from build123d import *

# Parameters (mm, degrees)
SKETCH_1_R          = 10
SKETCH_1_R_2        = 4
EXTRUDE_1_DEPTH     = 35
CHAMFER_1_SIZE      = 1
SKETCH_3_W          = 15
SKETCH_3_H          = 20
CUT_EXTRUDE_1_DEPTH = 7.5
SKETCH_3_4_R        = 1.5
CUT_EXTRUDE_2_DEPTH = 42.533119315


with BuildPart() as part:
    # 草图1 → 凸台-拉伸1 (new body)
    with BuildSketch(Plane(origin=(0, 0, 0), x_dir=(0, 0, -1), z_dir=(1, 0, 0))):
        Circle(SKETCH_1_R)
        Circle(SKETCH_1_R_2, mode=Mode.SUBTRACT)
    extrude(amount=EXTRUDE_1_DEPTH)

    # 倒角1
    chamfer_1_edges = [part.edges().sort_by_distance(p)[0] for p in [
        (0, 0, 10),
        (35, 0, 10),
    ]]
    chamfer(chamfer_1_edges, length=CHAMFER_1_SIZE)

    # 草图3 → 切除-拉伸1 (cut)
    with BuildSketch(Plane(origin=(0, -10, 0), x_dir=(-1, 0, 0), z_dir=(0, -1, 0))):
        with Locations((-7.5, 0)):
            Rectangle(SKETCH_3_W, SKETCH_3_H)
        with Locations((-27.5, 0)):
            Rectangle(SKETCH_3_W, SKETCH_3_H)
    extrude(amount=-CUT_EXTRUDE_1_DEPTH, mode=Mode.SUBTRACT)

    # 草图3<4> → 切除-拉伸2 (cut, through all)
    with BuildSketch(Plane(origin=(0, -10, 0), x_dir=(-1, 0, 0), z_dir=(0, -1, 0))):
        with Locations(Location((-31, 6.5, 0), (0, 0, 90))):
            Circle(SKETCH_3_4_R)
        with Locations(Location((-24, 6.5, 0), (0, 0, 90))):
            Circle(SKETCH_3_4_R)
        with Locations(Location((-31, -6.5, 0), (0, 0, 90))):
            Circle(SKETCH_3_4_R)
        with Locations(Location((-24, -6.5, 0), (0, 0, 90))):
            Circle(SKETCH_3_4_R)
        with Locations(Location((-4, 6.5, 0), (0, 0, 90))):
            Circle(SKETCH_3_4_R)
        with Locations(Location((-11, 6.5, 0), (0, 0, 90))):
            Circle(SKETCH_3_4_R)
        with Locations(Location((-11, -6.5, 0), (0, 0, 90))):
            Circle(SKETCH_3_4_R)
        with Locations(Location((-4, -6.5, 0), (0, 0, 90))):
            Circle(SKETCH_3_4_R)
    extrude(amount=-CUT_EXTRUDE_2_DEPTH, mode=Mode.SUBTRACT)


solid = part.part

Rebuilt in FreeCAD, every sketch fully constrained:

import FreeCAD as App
import Part
import Sketcher

V = App.Vector


def edges_at(feature, points):
    """Names of the edges that pass closest to the given points."""
    edges = feature.Shape.Edges
    near = lambda p: min(range(len(edges)), key=lambda i: edges[i].distToShape(Part.Vertex(*p))[0])
    return sorted({f"Edge{near(p) + 1}" for p in points})


def add_polygon(sketch, points):
    """Adds a closed chain of lines whose ends are joined by coincident constraints."""
    first, n = sketch.GeometryCount, len(points)
    for a, b in zip(points, points[1:] + points[:1]):
        sketch.addGeometry(Part.LineSegment(App.Vector(*a, 0), App.Vector(*b, 0)), False)
    for i in range(n):
        sketch.addConstraint(Sketcher.Constraint("Coincident", first + i, 2, first + (i + 1) % n, 1))

doc = App.newDocument("Part")
body = doc.addObject("PartDesign::Body", "Body")

sketch1 = body.newObject("Sketcher::SketchObject", "Sketch")
sketch1.AttachmentSupport = (doc.getObject("YZ_Plane"), [""])
sketch1.MapMode = "FlatFace"
sketch1.addGeometry(Part.Circle(V(0, 0, 0), V(0, 0, 1), 10), False)
sketch1.addGeometry(Part.Circle(V(0, 0, 0), V(0, 0, 1), 4), False)
sketch1.addConstraint(Sketcher.Constraint("Coincident", 0, 3, -1, 1))
sketch1.addConstraint(Sketcher.Constraint("Coincident", 1, 3, -1, 1))
sketch1.addConstraint(Sketcher.Constraint("Diameter", 0, 20.0))
sketch1.addConstraint(Sketcher.Constraint("Diameter", 1, 8.0))
pad1 = body.newObject("PartDesign::Pad", "Pad")
pad1.Profile = sketch1
pad1.Length = 35
doc.recompute()

chamfer = body.newObject("PartDesign::Chamfer", "Chamfer")
chamfer.Base = (pad1, edges_at(pad1, [(0, 0, 10), (35, 0, 10)]))
chamfer.Size = 1

sketch2 = body.newObject("Sketcher::SketchObject", "Sketch001")
sketch2.AttachmentSupport = (doc.getObject("XZ_Plane"), [""])
sketch2.MapMode = "FlatFace"
sketch2.AttachmentOffset = App.Placement(V(0, 0, 10), App.Rotation())
add_polygon(sketch2, [(15, -10), (15, 10), (0, 10), (0, -10)])
add_polygon(sketch2, [(35, -10), (35, 10), (20, 10), (20, -10)])
sketch2.addConstraint(Sketcher.Constraint("Vertical", 0))
sketch2.addConstraint(Sketcher.Constraint("Horizontal", 1))
sketch2.addConstraint(Sketcher.Constraint("Vertical", 2))
sketch2.addConstraint(Sketcher.Constraint("Horizontal", 3))
sketch2.addConstraint(Sketcher.Constraint("Vertical", 4))
sketch2.addConstraint(Sketcher.Constraint("Horizontal", 5))
sketch2.addConstraint(Sketcher.Constraint("Vertical", 6))
sketch2.addConstraint(Sketcher.Constraint("Horizontal", 7))
sketch2.addConstraint(Sketcher.Constraint("Symmetric", 1, 2, 2, 2, -1, 1))
sketch2.addConstraint(Sketcher.Constraint("Horizontal", 1, 2, 4, 2))
sketch2.addConstraint(Sketcher.Constraint("Horizontal", 3, 2, 6, 2))
sketch2.addConstraint(Sketcher.Constraint("Equal", 3, 5))
sketch2.addConstraint(Sketcher.Constraint("DistanceX", 1, 2, 1, 1, 15.0))
sketch2.addConstraint(Sketcher.Constraint("DistanceY", 0, 1, 0, 2, 20.0))
sketch2.addConstraint(Sketcher.Constraint("DistanceX", -1, 1, 4, 2, 35.0))
pocket1 = body.newObject("PartDesign::Pocket", "Pocket")
pocket1.Profile = sketch2
pocket1.Length = 7.5

sketch3 = body.newObject("Sketcher::SketchObject", "Sketch002")
sketch3.AttachmentSupport = (doc.getObject("XZ_Plane"), [""])
sketch3.MapMode = "FlatFace"
sketch3.AttachmentOffset = App.Placement(V(0, 0, 10), App.Rotation())
sketch3.addGeometry(Part.Circle(V(31, -6.5, 0), V(0, 0, 1), 1.5), False)
sketch3.addGeometry(Part.Circle(V(24, -6.5, 0), V(0, 0, 1), 1.5), False)
sketch3.addGeometry(Part.Circle(V(31, 6.5, 0), V(0, 0, 1), 1.5), False)
sketch3.addGeometry(Part.Circle(V(24, 6.5, 0), V(0, 0, 1), 1.5), False)
sketch3.addGeometry(Part.Circle(V(4, -6.5, 0), V(0, 0, 1), 1.5), False)
sketch3.addGeometry(Part.Circle(V(11, -6.5, 0), V(0, 0, 1), 1.5), False)
sketch3.addGeometry(Part.Circle(V(11, 6.5, 0), V(0, 0, 1), 1.5), False)
sketch3.addGeometry(Part.Circle(V(4, 6.5, 0), V(0, 0, 1), 1.5), False)
sketch3.addConstraint(Sketcher.Constraint("Equal", 0, 1))
sketch3.addConstraint(Sketcher.Constraint("Equal", 1, 2))
sketch3.addConstraint(Sketcher.Constraint("Equal", 2, 3))
sketch3.addConstraint(Sketcher.Constraint("Equal", 3, 4))
sketch3.addConstraint(Sketcher.Constraint("Equal", 4, 5))
sketch3.addConstraint(Sketcher.Constraint("Equal", 5, 6))
sketch3.addConstraint(Sketcher.Constraint("Equal", 6, 7))
sketch3.addConstraint(Sketcher.Constraint("Symmetric", 0, 3, 2, 3, -1))
sketch3.addConstraint(Sketcher.Constraint("Symmetric", 1, 3, 3, 3, -1))
sketch3.addConstraint(Sketcher.Constraint("Symmetric", 5, 3, 6, 3, -1))
sketch3.addConstraint(Sketcher.Constraint("Symmetric", 4, 3, 7, 3, -1))
sketch3.addConstraint(Sketcher.Constraint("Horizontal", 0, 3, 1, 3))
sketch3.addConstraint(Sketcher.Constraint("Horizontal", 1, 3, 4, 3))
sketch3.addConstraint(Sketcher.Constraint("Horizontal", 4, 3, 5, 3))
sketch3.addConstraint(Sketcher.Constraint("Diameter", 0, 3.0))
sketch3.addConstraint(Sketcher.Constraint("DistanceX", -1, 1, 0, 3, 31.0))
sketch3.addConstraint(Sketcher.Constraint("DistanceX", -1, 1, 1, 3, 24.0))
sketch3.addConstraint(Sketcher.Constraint("DistanceX", -1, 1, 4, 3, 4.0))
sketch3.addConstraint(Sketcher.Constraint("DistanceX", -1, 1, 5, 3, 11.0))
sketch3.addConstraint(Sketcher.Constraint("DistanceY", 0, 3, 2, 3, 13.0))
pocket2 = body.newObject("PartDesign::Pocket", "Pocket001")
pocket2.Profile = sketch3
pocket2.Type = "ThroughAll"

doc.recompute()
